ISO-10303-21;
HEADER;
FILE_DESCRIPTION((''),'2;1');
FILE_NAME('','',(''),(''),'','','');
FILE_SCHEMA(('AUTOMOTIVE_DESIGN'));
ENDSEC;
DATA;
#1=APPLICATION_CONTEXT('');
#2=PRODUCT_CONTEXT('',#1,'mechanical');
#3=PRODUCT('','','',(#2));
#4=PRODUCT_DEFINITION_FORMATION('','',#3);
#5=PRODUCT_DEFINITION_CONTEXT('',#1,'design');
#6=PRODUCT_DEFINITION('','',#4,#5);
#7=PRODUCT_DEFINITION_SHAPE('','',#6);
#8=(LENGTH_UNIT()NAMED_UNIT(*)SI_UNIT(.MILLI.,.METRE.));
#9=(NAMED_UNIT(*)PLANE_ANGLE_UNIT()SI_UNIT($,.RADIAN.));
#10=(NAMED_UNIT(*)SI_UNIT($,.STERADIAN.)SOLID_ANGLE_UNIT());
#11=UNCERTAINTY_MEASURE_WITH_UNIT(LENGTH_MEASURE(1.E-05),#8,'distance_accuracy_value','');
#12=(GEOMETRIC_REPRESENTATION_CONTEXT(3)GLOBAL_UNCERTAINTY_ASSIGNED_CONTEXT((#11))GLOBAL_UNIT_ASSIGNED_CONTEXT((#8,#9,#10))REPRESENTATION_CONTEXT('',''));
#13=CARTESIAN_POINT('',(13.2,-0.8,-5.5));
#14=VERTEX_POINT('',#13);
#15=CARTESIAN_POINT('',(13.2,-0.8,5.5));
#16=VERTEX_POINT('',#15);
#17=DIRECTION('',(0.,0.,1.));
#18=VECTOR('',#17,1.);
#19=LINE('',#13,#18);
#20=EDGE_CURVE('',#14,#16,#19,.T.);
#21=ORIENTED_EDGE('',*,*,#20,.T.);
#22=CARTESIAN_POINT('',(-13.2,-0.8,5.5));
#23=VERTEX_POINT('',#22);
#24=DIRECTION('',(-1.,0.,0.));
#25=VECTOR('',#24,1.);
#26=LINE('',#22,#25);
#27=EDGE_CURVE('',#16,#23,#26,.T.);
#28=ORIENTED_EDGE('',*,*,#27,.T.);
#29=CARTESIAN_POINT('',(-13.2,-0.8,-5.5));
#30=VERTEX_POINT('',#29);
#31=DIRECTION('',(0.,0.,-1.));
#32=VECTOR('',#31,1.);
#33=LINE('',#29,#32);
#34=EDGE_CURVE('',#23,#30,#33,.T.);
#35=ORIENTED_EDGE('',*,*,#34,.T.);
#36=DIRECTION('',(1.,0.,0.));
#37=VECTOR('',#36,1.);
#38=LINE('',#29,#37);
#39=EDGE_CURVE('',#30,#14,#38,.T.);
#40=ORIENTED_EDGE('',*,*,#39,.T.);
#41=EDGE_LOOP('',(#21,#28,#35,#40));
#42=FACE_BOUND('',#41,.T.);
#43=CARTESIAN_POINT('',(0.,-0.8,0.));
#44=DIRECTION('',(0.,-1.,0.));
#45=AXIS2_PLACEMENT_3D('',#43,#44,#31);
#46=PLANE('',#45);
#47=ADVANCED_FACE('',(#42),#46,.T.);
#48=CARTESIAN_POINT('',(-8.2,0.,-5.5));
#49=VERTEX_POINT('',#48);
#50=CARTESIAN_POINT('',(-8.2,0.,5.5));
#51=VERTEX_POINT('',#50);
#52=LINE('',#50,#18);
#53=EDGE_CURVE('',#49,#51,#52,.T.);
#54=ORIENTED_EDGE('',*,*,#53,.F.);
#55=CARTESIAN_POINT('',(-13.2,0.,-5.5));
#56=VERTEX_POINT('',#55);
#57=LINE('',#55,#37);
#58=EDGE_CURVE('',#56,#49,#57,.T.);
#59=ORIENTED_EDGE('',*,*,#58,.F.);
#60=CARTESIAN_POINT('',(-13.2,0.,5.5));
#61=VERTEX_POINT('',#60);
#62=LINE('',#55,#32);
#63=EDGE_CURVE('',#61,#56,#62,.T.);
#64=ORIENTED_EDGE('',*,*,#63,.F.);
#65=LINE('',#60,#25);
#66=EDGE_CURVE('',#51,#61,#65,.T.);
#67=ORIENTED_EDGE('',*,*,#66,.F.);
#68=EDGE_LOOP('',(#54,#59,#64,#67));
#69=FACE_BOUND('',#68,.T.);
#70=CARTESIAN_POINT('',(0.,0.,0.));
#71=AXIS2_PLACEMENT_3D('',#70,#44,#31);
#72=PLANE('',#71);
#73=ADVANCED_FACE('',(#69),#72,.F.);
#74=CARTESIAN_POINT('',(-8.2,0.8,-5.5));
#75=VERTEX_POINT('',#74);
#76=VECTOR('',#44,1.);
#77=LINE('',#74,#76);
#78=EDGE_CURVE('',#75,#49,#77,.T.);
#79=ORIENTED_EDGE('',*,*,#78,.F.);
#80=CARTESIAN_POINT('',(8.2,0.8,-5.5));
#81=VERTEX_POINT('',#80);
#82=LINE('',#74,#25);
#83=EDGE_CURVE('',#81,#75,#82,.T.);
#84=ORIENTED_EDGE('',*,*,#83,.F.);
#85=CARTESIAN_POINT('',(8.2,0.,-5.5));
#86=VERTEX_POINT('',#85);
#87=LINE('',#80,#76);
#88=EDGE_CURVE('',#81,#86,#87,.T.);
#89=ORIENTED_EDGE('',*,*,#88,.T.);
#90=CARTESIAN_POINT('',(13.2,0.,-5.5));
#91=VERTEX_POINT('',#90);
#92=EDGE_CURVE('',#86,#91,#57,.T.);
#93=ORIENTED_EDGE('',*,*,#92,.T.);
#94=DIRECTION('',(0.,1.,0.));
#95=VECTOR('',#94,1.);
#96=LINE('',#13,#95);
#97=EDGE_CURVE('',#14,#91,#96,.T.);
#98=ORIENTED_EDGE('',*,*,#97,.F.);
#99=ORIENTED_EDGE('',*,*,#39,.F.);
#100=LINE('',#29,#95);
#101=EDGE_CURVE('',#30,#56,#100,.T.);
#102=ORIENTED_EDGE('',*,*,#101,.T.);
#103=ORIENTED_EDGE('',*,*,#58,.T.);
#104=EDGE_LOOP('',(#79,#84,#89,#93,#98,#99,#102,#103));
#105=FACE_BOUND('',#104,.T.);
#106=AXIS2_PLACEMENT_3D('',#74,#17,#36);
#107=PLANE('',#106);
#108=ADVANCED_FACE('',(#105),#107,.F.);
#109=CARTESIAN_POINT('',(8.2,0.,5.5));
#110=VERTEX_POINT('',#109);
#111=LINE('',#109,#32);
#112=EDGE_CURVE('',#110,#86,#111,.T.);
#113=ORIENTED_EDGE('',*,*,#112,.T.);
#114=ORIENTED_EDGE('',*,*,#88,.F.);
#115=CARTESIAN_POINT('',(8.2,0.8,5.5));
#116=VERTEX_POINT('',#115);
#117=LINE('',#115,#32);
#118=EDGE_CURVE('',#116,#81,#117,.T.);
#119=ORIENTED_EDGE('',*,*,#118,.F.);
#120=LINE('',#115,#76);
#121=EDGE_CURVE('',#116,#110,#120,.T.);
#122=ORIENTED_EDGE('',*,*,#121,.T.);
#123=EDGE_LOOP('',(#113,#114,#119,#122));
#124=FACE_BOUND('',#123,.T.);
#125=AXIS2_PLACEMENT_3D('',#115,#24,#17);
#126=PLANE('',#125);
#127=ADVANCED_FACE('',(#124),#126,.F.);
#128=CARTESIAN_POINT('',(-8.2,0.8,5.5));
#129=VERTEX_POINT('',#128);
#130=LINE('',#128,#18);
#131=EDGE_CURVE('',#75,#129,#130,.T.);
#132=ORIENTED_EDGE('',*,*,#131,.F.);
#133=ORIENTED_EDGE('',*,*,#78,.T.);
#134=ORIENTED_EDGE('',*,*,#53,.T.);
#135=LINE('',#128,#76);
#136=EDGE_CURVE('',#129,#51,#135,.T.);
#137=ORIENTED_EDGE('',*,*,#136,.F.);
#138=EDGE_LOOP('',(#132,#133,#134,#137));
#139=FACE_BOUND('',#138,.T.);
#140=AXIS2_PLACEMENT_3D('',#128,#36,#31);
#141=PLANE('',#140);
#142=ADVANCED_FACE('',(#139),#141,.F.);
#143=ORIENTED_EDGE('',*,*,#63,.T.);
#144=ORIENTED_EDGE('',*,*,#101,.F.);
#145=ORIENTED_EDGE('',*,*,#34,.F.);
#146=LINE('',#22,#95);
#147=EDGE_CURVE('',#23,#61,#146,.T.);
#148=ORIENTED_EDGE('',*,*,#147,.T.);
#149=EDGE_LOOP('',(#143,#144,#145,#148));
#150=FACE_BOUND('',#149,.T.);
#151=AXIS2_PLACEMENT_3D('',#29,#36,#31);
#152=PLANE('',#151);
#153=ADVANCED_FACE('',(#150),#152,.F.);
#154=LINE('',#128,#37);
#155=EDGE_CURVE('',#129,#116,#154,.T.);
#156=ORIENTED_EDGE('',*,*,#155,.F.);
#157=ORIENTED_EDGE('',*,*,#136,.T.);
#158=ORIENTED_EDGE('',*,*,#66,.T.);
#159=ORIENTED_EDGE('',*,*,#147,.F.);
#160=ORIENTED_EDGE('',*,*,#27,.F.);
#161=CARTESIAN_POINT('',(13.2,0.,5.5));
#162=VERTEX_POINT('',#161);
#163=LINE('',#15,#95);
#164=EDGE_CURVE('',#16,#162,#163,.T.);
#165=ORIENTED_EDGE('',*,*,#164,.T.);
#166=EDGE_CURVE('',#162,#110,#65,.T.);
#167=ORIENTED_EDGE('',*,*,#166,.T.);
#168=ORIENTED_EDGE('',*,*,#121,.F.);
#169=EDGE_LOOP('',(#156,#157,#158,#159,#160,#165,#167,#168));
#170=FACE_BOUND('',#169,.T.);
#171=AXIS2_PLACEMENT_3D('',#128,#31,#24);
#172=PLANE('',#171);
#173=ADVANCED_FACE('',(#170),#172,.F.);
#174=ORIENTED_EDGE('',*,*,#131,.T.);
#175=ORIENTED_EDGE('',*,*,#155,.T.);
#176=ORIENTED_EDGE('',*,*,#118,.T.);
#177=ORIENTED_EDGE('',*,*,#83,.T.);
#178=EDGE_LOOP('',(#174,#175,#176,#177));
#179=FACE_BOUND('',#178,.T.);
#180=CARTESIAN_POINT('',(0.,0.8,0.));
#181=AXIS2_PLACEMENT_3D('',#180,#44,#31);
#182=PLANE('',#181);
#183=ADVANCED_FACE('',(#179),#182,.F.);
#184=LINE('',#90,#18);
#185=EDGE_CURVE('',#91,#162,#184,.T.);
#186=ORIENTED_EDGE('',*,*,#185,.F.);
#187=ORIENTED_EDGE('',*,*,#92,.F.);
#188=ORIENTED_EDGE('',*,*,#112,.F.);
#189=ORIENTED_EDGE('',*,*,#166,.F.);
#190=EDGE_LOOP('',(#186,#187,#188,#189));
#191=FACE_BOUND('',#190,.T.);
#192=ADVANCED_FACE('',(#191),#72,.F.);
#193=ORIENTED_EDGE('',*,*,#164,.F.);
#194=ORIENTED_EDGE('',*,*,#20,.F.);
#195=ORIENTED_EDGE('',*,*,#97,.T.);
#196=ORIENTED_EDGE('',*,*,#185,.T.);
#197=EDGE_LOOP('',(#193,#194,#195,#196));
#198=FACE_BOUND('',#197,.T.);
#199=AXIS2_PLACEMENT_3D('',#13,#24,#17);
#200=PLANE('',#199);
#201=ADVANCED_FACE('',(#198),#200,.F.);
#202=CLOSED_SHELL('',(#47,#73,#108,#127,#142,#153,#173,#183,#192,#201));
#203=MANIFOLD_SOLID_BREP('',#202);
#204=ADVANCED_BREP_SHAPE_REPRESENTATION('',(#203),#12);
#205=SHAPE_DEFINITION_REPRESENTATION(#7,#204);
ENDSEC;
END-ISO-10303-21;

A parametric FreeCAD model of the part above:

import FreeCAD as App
import Part
import Sketcher

V = App.Vector


def add_polygon(sketch, points):
    """Adds a closed chain of lines whose ends are joined by coincident constraints."""
    first, n = sketch.GeometryCount, len(points)
    for a, b in zip(points, points[1:] + points[:1]):
        sketch.addGeometry(Part.LineSegment(App.Vector(*a, 0), App.Vector(*b, 0)), False)
    for i in range(n):
        sketch.addConstraint(Sketcher.Constraint("Coincident", first + i, 2, first + (i + 1) % n, 1))

doc = App.newDocument("Part")
body = doc.addObject("PartDesign::Body", "Body")

# Sketch on XZ plane
sketch1 = body.newObject("Sketcher::SketchObject", "Sketch")
sketch1.AttachmentSupport = (doc.getObject("XZ_Plane"), [""])
sketch1.MapMode = "FlatFace"
add_polygon(sketch1, [(-8, -6), (-8, 6), (8, 6), (8, -6)])  # lines 0-3
sketch1.addConstraint([
    Sketcher.Constraint("Vertical", 0),
    Sketcher.Constraint("Horizontal", 1),
    Sketcher.Constraint("Vertical", 2),
    Sketcher.Constraint("Horizontal", 3),
    Sketcher.Constraint("Symmetric", 0, 2, 2, 2, -1, 1),
    Sketcher.Constraint("DistanceY", 0, 1, 0, 2, 11.0),
    Sketcher.Constraint("DistanceX", 1, 1, 1, 2, 16.4),
])
pad1 = body.newObject("PartDesign::Pad", "Pad")
pad1.Profile = sketch1
pad1.Length = 0.8
pad1.Reversed = True

# Sketch on XZ plane
sketch2 = body.newObject("Sketcher::SketchObject", "Sketch001")
sketch2.AttachmentSupport = (doc.getObject("XZ_Plane"), [""])
sketch2.MapMode = "FlatFace"
add_polygon(sketch2, [(-13, 6), (-13, -6), (13, -6), (13, 6)])  # lines 0-3
sketch2.addConstraint([
    Sketcher.Constraint("Vertical", 0),
    Sketcher.Constraint("Horizontal", 1),
    Sketcher.Constraint("Vertical", 2),
    Sketcher.Constraint("Horizontal", 3),
    Sketcher.Constraint("Symmetric", 0, 2, 2, 2, -1, 1),
    Sketcher.Constraint("DistanceY", 0, 2, 0, 1, 11.0),
    Sketcher.Constraint("DistanceX", 1, 1, 1, 2, 26.4),
])
pad2 = body.newObject("PartDesign::Pad", "Pad001")
pad2.Profile = sketch2
pad2.Length = 0.8

doc.recompute()
